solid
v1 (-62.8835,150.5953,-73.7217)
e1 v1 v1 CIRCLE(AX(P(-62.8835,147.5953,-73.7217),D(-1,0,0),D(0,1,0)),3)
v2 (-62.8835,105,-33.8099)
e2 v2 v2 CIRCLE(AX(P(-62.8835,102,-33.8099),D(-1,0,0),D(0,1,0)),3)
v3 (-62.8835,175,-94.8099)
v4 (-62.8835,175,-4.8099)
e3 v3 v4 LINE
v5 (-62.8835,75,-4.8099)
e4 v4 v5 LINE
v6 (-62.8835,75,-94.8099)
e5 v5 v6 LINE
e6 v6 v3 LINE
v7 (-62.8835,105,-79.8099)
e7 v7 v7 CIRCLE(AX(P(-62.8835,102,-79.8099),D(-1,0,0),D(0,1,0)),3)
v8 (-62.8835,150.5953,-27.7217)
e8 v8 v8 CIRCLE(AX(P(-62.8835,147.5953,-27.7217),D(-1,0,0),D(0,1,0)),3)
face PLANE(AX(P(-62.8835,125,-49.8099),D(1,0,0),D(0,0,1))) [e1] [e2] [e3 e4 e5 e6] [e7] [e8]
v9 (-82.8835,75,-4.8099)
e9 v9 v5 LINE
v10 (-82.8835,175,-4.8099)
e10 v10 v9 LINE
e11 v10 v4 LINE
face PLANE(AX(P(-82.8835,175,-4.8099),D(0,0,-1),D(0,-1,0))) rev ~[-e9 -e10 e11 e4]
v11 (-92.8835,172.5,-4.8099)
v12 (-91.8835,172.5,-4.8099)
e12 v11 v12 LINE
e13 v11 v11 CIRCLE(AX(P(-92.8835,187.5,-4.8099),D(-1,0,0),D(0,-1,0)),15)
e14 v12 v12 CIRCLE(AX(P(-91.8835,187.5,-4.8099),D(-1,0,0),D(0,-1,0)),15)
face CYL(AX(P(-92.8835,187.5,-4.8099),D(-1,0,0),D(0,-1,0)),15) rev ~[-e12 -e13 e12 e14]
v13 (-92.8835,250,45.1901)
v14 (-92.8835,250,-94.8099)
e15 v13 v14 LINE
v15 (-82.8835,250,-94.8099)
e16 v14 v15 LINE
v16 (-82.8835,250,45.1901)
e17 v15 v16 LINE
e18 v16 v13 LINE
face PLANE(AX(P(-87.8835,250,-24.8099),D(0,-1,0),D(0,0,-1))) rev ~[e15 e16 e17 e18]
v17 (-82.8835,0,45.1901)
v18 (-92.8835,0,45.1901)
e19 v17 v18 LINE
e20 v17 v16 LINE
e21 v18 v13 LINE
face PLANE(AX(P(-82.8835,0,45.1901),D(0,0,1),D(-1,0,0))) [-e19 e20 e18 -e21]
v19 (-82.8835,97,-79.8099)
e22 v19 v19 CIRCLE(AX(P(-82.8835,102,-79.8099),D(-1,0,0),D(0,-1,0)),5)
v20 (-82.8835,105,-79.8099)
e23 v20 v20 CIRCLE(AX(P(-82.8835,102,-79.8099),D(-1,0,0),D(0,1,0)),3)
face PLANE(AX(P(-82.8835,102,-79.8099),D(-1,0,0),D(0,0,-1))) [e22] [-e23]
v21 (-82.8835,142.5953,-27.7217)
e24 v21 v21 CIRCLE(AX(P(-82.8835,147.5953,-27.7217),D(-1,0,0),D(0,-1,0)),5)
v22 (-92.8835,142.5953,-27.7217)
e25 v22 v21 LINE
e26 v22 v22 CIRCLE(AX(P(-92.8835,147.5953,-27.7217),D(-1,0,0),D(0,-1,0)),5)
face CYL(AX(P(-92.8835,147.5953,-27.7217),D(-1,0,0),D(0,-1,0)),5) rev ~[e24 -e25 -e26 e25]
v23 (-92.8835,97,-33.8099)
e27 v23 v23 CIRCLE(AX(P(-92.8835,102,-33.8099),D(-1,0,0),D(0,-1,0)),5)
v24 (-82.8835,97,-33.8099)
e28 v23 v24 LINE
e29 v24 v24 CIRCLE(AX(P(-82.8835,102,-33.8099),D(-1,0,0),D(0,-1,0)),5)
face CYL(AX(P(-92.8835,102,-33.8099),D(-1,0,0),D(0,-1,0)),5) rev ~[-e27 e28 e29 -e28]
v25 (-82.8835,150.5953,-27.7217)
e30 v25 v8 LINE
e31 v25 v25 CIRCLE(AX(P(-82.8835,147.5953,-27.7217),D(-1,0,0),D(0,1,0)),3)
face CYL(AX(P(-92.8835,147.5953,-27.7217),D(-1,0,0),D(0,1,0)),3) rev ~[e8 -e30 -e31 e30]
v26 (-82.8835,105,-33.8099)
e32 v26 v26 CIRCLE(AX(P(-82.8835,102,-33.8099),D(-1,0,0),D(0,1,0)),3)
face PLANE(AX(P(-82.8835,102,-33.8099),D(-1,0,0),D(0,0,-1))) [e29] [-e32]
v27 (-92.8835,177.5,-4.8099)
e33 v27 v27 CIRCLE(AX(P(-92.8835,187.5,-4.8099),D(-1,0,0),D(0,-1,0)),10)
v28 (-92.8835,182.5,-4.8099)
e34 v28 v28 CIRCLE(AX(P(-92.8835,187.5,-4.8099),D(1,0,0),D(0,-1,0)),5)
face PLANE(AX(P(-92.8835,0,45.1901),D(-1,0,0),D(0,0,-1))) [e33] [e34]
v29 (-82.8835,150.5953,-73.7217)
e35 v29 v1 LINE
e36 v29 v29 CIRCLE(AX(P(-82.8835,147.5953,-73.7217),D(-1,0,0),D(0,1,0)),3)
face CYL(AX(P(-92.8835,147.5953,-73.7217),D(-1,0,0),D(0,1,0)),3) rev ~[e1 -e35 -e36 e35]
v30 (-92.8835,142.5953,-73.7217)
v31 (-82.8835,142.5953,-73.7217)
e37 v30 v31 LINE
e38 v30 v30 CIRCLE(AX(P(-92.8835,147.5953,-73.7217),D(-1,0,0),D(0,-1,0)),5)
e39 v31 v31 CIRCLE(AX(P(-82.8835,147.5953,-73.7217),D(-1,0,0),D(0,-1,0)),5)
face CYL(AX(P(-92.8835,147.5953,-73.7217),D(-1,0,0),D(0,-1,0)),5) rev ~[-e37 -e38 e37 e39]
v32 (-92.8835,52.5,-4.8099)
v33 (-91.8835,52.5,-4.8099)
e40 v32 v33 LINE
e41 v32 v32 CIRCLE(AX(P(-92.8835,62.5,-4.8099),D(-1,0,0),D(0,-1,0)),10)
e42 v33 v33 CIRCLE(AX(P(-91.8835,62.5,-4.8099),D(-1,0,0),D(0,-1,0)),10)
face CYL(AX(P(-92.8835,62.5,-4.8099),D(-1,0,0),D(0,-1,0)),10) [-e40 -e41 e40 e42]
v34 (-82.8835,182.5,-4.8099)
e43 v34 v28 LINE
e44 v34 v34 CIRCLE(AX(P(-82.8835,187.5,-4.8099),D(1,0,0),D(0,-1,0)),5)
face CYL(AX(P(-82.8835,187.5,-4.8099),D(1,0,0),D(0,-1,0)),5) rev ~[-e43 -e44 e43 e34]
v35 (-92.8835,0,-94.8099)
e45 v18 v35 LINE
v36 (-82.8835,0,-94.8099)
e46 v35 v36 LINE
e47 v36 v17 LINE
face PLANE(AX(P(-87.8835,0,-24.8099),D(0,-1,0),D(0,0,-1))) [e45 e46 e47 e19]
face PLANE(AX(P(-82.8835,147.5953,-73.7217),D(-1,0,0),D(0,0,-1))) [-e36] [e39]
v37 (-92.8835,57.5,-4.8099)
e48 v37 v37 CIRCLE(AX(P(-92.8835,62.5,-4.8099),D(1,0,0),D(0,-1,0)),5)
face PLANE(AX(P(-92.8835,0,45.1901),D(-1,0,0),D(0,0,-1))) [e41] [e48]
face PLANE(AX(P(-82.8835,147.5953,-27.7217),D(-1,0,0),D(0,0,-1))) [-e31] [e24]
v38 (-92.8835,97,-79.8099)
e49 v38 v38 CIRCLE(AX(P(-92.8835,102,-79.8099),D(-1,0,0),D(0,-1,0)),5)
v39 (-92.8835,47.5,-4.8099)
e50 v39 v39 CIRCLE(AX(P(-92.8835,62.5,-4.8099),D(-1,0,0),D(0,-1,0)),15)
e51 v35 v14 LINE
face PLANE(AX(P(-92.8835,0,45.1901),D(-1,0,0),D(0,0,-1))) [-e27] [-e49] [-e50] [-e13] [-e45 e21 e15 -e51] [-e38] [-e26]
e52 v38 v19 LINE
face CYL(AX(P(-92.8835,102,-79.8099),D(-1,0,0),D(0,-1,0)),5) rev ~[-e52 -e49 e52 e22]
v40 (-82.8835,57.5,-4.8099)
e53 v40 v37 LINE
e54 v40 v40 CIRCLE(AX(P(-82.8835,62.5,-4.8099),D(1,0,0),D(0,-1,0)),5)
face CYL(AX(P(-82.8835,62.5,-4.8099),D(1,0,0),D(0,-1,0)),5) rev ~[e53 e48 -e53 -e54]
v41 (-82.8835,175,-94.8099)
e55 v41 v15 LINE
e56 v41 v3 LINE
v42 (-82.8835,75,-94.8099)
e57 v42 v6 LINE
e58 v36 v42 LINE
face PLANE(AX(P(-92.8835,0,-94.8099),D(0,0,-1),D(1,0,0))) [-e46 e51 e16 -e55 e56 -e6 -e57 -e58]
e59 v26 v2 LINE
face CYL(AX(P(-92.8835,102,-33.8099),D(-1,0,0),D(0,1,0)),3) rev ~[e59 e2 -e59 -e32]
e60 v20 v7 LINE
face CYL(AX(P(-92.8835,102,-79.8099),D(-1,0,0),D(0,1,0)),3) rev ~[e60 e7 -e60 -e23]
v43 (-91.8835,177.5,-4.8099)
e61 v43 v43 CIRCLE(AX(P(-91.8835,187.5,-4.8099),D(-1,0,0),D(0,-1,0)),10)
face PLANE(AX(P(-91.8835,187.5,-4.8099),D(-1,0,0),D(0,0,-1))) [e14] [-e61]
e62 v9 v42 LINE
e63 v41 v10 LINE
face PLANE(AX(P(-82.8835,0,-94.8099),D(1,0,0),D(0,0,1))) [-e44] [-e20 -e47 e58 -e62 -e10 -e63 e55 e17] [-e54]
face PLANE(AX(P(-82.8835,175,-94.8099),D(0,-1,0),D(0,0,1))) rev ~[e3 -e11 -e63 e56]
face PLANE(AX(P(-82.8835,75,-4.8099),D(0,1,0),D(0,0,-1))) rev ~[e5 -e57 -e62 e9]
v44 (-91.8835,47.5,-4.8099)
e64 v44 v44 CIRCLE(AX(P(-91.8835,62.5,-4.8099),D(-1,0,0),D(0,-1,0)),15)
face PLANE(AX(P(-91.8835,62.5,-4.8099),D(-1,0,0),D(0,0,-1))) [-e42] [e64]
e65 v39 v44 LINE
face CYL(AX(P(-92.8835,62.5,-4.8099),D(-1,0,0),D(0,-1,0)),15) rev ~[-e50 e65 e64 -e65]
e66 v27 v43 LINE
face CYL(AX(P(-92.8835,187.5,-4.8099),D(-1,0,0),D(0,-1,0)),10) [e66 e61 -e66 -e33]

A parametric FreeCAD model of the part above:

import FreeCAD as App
import Part
import Sketcher

V = App.Vector

doc = App.newDocument("Part")
body = doc.addObject("PartDesign::Body", "Body")

sketch1 = body.newObject("Sketcher::SketchObject", "Sketch")
sketch1.AttachmentSupport = (doc.getObject("XZ_Plane"), [""])
sketch1.MapMode = "FlatFace"
sketch1.addGeometry([
    Part.LineSegment(V(-93, 45, 0), V(-93, -95, 0)),
    Part.LineSegment(V(-93, -95, 0), V(-83, -95, 0)),
    Part.LineSegment(V(-83, -95, 0), V(-83, 45, 0)),
    Part.LineSegment(V(-83, 45, 0), V(-93, 45, 0)),
], False)
sketch1.addConstraint([
    Sketcher.Constraint("Coincident", 0, 2, 1, 1),
    Sketcher.Constraint("Coincident", 1, 2, 2, 1),
    Sketcher.Constraint("Coincident", 2, 2, 3, 1),
    Sketcher.Constraint("Coincident", 3, 2, 0, 1),
    Sketcher.Constraint("Vertical", 0),
    Sketcher.Constraint("Horizontal", 1),
    Sketcher.Constraint("Vertical", 2),
    Sketcher.Constraint("Horizontal", 3),
    Sketcher.Constraint("DistanceX", 1, 1, 1, 2, 10.0),
    Sketcher.Constraint("DistanceY", 0, 2, 0, 1, 140.0),
    Sketcher.Constraint("DistanceX", 0, 2, -1, 1, 92.8835),
    Sketcher.Constraint("DistanceY", 0, 2, -1, 1, 94.81),
])
pad1 = body.newObject("PartDesign::Pad", "Pad")
pad1.Profile = sketch1
pad1.Length = 250
pad1.Reversed = True

sketch2 = body.newObject("Sketcher::SketchObject", "Sketch001")
sketch2.AttachmentSupport = (doc.getObject("YZ_Plane"), [""])
sketch2.MapMode = "FlatFace"
sketch2.AttachmentOffset = App.Placement(V(0, 0, -82.8835), App.Rotation())
sketch2.addGeometry([
    Part.LineSegment(V(175, -95, 0), V(175, -5, 0)),
    Part.LineSegment(V(175, -5, 0), V(75, -5, 0)),
    Part.LineSegment(V(75, -5, 0), V(75, -95, 0)),
    Part.LineSegment(V(75, -95, 0), V(175, -95, 0)),
], False)
sketch2.addConstraint([
    Sketcher.Constraint("Coincident", 0, 2, 1, 1),
    Sketcher.Constraint("Coincident", 1, 2, 2, 1),
    Sketcher.Constraint("Coincident", 2, 2, 3, 1),
    Sketcher.Constraint("Coincident", 3, 2, 0, 1),
    Sketcher.Constraint("Vertical", 0),
    Sketcher.Constraint("Horizontal", 1),
    Sketcher.Constraint("Vertical", 2),
    Sketcher.Constraint("Horizontal", 3),
    Sketcher.Constraint("DistanceX", 1, 2, 1, 1, 100.0),
    Sketcher.Constraint("DistanceY", 0, 1, 0, 2, 90.0),
    Sketcher.Constraint("DistanceX", -1, 1, 0, 2, 175.0),
    Sketcher.Constraint("DistanceY", 0, 2, -1, 1, 4.81),
])
pad2 = body.newObject("PartDesign::Pad", "Pad001")
pad2.Profile = sketch2
pad2.Length = 20

sketch3 = body.newObject("Sketcher::SketchObject", "Sketch002")
sketch3.AttachmentSupport = (doc.getObject("YZ_Plane"), [""])
sketch3.MapMode = "FlatFace"
sketch3.AttachmentOffset = App.Placement(V(0, 0, -82.8835), App.Rotation())
sketch3.addGeometry([
    Part.Circle(V(62, -5, 0), V(0, 0, 1), 5),
    Part.Circle(V(188, -5, 0), V(0, 0, 1), 5),
], False)
sketch3.addConstraint([
    Sketcher.Constraint("Equal", 0, 1),
    Sketcher.Constraint("Horizontal", 0, 3, 1, 3),
    Sketcher.Constraint("Diameter", 0, 10.0),
    Sketcher.Constraint("DistanceX", 0, 3, 1, 3, 125.0),
    Sketcher.Constraint("DistanceX", -1, 1, 0, 3, 62.5),
    Sketcher.Constraint("DistanceY", 0, 3, -1, 1, 4.81),
])
pocket1 = body.newObject("PartDesign::Pocket", "Pocket")
pocket1.Profile = sketch3
pocket1.Type = "ThroughAll"

sketch4 = body.newObject("Sketcher::SketchObject", "Sketch003")
sketch4.AttachmentSupport = (doc.getObject("YZ_Plane"), [""])
sketch4.MapMode = "FlatFace"
sketch4.AttachmentOffset = App.Placement(V(0, 0, -92.8835), App.Rotation())
sketch4.addGeometry([
    Part.Circle(V(147.6, -73.7, 0), V(0, 0, 1), 3),
    Part.Circle(V(147.6, -27.7, 0), V(0, 0, 1), 3),
    Part.Circle(V(102, -33.8, 0), V(0, 0, 1), 3),
    Part.Circle(V(102, -79.8, 0), V(0, 0, 1), 3),
], False)
sketch4.addConstraint([
    Sketcher.Constraint("Equal", 0, 1),
    Sketcher.Constraint("Equal", 1, 2),
    Sketcher.Constraint("Equal", 2, 3),
    Sketcher.Constraint("Vertical", 0, 3, 1, 3),
    Sketcher.Constraint("Vertical", 2, 3, 3, 3),
    Sketcher.Constraint("Diameter", 0, 6.0),
    Sketcher.Constraint("DistanceX", -1, 1, 2, 3, 102.0),
    Sketcher.Constraint("DistanceY", 0, 3, 1, 3, 46.0),
    Sketcher.Constraint("DistanceY", 3, 3, 2, 3, 46.0),
    Sketcher.Constraint("DistanceY", 2, 3, -1, 1, 33.81),
    Sketcher.Constraint("DistanceX", -1, 1, 0, 3, 147.5953),
    Sketcher.Constraint("DistanceY", 0, 3, -1, 1, 73.7217),
])
pocket2 = body.newObject("PartDesign::Pocket", "Pocket001")
pocket2.Profile = sketch4
pocket2.Type = "ThroughAll"
pocket2.Reversed = True

sketch5 = body.newObject("Sketcher::SketchObject", "Sketch004")
sketch5.AttachmentSupport = (doc.getObject("YZ_Plane"), [""])
sketch5.MapMode = "FlatFace"
sketch5.AttachmentOffset = App.Placement(V(0, 0, -92.8835), App.Rotation())
sketch5.addGeometry([
    Part.Circle(V(148, -74, 0), V(0, 0, 1), 5),
    Part.Circle(V(102, -80, 0), V(0, 0, 1), 5),
    Part.Circle(V(102, -34, 0), V(0, 0, 1), 5),
    Part.Circle(V(148, -28, 0), V(0, 0, 1), 5),
], False)
sketch5.addConstraint([
    Sketcher.Constraint("Equal", 0, 1),
    Sketcher.Constraint("Equal", 1, 2),
    Sketcher.Constraint("Equal", 2, 3),
    Sketcher.Constraint("Vertical", 1, 3, 2, 3),
    Sketcher.Constraint("Vertical", 0, 3, 3, 3),
    Sketcher.Constraint("Diameter", 0, 10.0),
    Sketcher.Constraint("DistanceX", -1, 1, 1, 3, 102.0),
    Sketcher.Constraint("DistanceY", 1, 3, 2, 3, 46.0),
    Sketcher.Constraint("DistanceY", 0, 3, 3, 3, 46.0),
    Sketcher.Constraint("DistanceY", 1, 3, -1, 1, 79.81),
    Sketcher.Constraint("DistanceX", -1, 1, 0, 3, 147.5953),
    Sketcher.Constraint("DistanceY", 0, 3, -1, 1, 73.7217),
])
pocket3 = body.newObject("PartDesign::Pocket", "Pocket002")
pocket3.Profile = sketch5
pocket3.Length = 10
pocket3.Reversed = True

sketch6 = body.newObject("Sketcher::SketchObject", "Sketch005")
sketch6.AttachmentSupport = (doc.getObject("YZ_Plane"), [""])
sketch6.MapMode = "FlatFace"
sketch6.AttachmentOffset = App.Placement(V(0, 0, -92.8835), App.Rotation())
sketch6.addGeometry([
    Part.Circle(V(62, -5, 0), V(0, 0, 1), 15),
    Part.Circle(V(62, -5, 0), V(0, 0, 1), 10),
    Part.Circle(V(188, -5, 0), V(0, 0, 1), 15),
    Part.Circle(V(188, -5, 0), V(0, 0, 1), 10),
], False)
sketch6.addConstraint([
    Sketcher.Constraint("Coincident", 1, 3, 0, 3),
    Sketcher.Constraint("Coincident", 3, 3, 2, 3),
    Sketcher.Constraint("Equal", 0, 2),
    Sketcher.Constraint("Equal", 1, 3),
    Sketcher.Constraint("Horizontal", 1, 3, 2, 3),
    Sketcher.Constraint("Diameter", 0, 30.0),
    Sketcher.Constraint("Diameter", 1, 20.0),
    Sketcher.Constraint("DistanceX", 0, 3, 2, 3, 125.0),
    Sketcher.Constraint("DistanceX", -1, 1, 0, 3, 62.5),
    Sketcher.Constraint("DistanceY", 0, 3, -1, 1, 4.81),
])
pocket4 = body.newObject("PartDesign::Pocket", "Pocket003")
pocket4.Profile = sketch6
pocket4.Length = 1
pocket4.Reversed = True

doc.recompute()
